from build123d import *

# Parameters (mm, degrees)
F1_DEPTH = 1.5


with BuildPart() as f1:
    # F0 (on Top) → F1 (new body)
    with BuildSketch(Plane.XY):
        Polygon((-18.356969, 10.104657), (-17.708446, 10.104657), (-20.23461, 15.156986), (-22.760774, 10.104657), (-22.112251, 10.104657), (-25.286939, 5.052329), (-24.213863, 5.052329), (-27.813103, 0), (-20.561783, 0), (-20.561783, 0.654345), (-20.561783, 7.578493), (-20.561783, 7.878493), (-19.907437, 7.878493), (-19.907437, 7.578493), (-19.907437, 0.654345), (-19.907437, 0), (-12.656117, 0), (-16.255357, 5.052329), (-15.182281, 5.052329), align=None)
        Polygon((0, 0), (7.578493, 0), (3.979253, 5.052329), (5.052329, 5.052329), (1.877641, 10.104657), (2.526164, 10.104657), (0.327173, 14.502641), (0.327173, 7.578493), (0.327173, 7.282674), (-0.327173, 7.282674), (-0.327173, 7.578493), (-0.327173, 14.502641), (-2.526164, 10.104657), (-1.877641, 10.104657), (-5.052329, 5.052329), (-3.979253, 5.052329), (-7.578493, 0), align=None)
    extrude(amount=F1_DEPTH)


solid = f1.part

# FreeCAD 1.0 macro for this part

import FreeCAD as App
import Part
import Sketcher
from FreeCAD import Vector


def add_polygon(sketch, points):
    """Adds a closed chain of lines whose ends are joined by coincident constraints."""
    first, n = sketch.GeometryCount, len(points)
    for a, b in zip(points, points[1:] + points[:1]):
        sketch.addGeometry(Part.LineSegment(App.Vector(*a, 0), App.Vector(*b, 0)), False)
    for i in range(n):
        sketch.addConstraint(Sketcher.Constraint("Coincident", first + i, 2, first + (i + 1) % n, 1))

doc = App.newDocument("Part")
body = doc.addObject("PartDesign::Body", "Body")
body.AllowCompound = True

# Sketch on XY plane
sketch1 = body.newObject("Sketcher::SketchObject", "Sketch")
sketch1.AttachmentSupport = (doc.getObject("XY_Plane"), [""])
sketch1.MapMode = "FlatFace"
add_polygon(sketch1, [(-18.356969, 10.104657), (-17.708446, 10.104657), (-20.23461, 15.156986), (-22.760774, 10.104657), (-22.112251, 10.104657), (-25.286939, 5.052329), (-24.213863, 5.052329), (-27.813103, 0), (-20.561783, 0), (-20.561783, 7.878493), (-19.907437, 7.878493), (-19.907437, 0), (-12.656117, 0), (-16.255357, 5.052329), (-15.182281, 5.052329)])  # lines 0-14
add_polygon(sketch1, [(7.578493, 0), (3.979253, 5.052329), (5.052329, 5.052329), (1.877641, 10.104657), (2.526164, 10.104657), (0.327173, 14.502641), (0.327173, 7.282674), (-0.327173, 7.282674), (-0.327173, 14.502641), (-2.526164, 10.104657), (-1.877641, 10.104657), (-5.052329, 5.052329), (-3.979253, 5.052329), (-7.578493, 0)])  # lines 15-28
sketch1.addConstraint([
    Sketcher.Constraint("Horizontal", 0),
    Sketcher.Constraint("Horizontal", 3),
    Sketcher.Constraint("Horizontal", 5),
    Sketcher.Constraint("Horizontal", 7),
    Sketcher.Constraint("Vertical", 8),
    Sketcher.Constraint("Horizontal", 9),
    Sketcher.Constraint("Vertical", 10),
    Sketcher.Constraint("Horizontal", 11),
    Sketcher.Constraint("Horizontal", 13),
    Sketcher.Constraint("Horizontal", 16),
    Sketcher.Constraint("Horizontal", 18),
    Sketcher.Constraint("Vertical", 20),
    Sketcher.Constraint("Horizontal", 21),
    Sketcher.Constraint("Vertical", 22),
    Sketcher.Constraint("Horizontal", 24),
    Sketcher.Constraint("Horizontal", 26),
    Sketcher.Constraint("Horizontal", 28),
    Sketcher.Constraint("Symmetric", 27, 2, 28, 2, -1, 1),
    Sketcher.Constraint("Symmetric", 19, 2, 22, 2, -2),
    Sketcher.Constraint("Symmetric", 18, 2, 23, 2, -2),
    Sketcher.Constraint("Symmetric", 16, 2, 25, 2, -2),
    Sketcher.Constraint("PointOnObject", 6, 2, -1),
    Sketcher.Constraint("PointOnObject", 10, 2, -1),
    Sketcher.Constraint("Parallel", 12, 15),
    Sketcher.Constraint("Parallel", 14, 17),
    Sketcher.Constraint("Parallel", 1, 19),
    Sketcher.Constraint("Parallel", 2, 23),
    Sketcher.Constraint("Parallel", 4, 25),
    Sketcher.Constraint("Parallel", 6, 27),
    Sketcher.Constraint("Horizontal", 0, 2, 2, 2),
    Sketcher.Constraint("Horizontal", 5, 2, 12, 2),
    Sketcher.Constraint("Horizontal", 13, 2, 15, 2),
    Sketcher.Constraint("Horizontal", 14, 2, 17, 2),
    Sketcher.Constraint("Equal", 0, 3),
    Sketcher.Constraint("Equal", 7, 11),
    Sketcher.Constraint("Equal", 5, 13),
    Sketcher.Constraint("Equal", 13, 16),
    Sketcher.Constraint("Equal", 3, 18),
    Sketcher.Constraint("Equal", 9, 21),
    Sketcher.Constraint("Equal", 18, 24),
    Sketcher.Constraint("Equal", 16, 26),
    Sketcher.Constraint("DistanceX", 12, 2, 17, 2, 18.132998),
    Sketcher.Constraint("DistanceX", 7, 1, 7, 2, 7.25132),
    Sketcher.Constraint("DistanceX", 4, 2, 10, 2, 5.379502),
    Sketcher.Constraint("DistanceX", 0, 2, 15, 2, 21.687699),
    Sketcher.Constraint("Distance", 6, 6.20327),
    Sketcher.Constraint("DistanceX", 0, 1, 0, 2, 0.648523),
    Sketcher.Constraint("DistanceX", 5, 1, 5, 2, 1.073076),
    Sketcher.Constraint("DistanceX", 9, 1, 9, 2, 0.654346),
    Sketcher.Constraint("DistanceX", 28, 1, 28, 2, 15.156986),
    Sketcher.Constraint("DistanceY", 8, 1, 8, 2, 7.878493),
    Sketcher.Constraint("DistanceY", 20, 2, 20, 1, 7.219967),
    Sketcher.Constraint("DistanceY", -1, 1, 19, 2, 14.502641),
    Sketcher.Constraint("DistanceY", 0, 2, 1, 2, 5.052329),
])
pad1 = body.newObject("PartDesign::Pad", "Pad")
pad1.Profile = sketch1
pad1.Length = 1.5

doc.recompute()
